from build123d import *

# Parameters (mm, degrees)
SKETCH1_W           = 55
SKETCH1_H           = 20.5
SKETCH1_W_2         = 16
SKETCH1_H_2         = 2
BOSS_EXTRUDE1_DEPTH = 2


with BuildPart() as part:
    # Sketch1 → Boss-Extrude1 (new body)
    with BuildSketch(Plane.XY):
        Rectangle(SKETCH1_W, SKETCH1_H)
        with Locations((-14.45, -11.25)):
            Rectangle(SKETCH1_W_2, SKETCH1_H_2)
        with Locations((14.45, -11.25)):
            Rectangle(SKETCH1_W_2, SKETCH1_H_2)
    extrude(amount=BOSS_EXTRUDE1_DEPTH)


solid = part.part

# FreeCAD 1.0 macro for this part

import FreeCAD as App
import Part
import Sketcher


def add_polygon(sketch, points):
    """Adds a closed chain of lines whose ends are joined by coincident constraints."""
    first, n = sketch.GeometryCount, len(points)
    for a, b in zip(points, points[1:] + points[:1]):
        sketch.addGeometry(Part.LineSegment(App.Vector(*a, 0), App.Vector(*b, 0)), False)
    for i in range(n):
        sketch.addConstraint(Sketcher.Constraint("Coincident", first + i, 2, first + (i + 1) % n, 1))

doc = App.newDocument("Part")
body = doc.addObject("PartDesign::Body", "Body")

# Sketch on XY plane
sketch1 = body.newObject("Sketcher::SketchObject", "Sketch")
sketch1.AttachmentSupport = (doc.getObject("XY_Plane"), [""])
sketch1.MapMode = "FlatFace"
add_polygon(sketch1, [(-27.5, 10.2), (-27.5, -10.2), (-22.4, -10.2), (-22.4, -12.2), (-6.5, -12.2), (-6.5, -10.2), (6.5, -10.2), (6.5, -12.2), (22.4, -12.2), (22.4, -10.2), (27.5, -10.2), (27.5, 10.2)])  # lines 0-11
sketch1.addConstraint(Sketcher.Constraint("Vertical", 0))
sketch1.addConstraint(Sketcher.Constraint("Horizontal", 1))
sketch1.addConstraint(Sketcher.Constraint("Vertical", 2))
sketch1.addConstraint(Sketcher.Constraint("Horizontal", 3))
sketch1.addConstraint(Sketcher.Constraint("Vertical", 4))
sketch1.addConstraint(Sketcher.Constraint("Horizontal", 5))
sketch1.addConstraint(Sketcher.Constraint("Vertical", 6))
sketch1.addConstraint(Sketcher.Constraint("Horizontal", 7))
sketch1.addConstraint(Sketcher.Constraint("Vertical", 8))
sketch1.addConstraint(Sketcher.Constraint("Horizontal", 9))
sketch1.addConstraint(Sketcher.Constraint("Vertical", 10))
sketch1.addConstraint(Sketcher.Constraint("Horizontal", 11))
sketch1.addConstraint(Sketcher.Constraint("Symmetric", 0, 2, 10, 2, -1, 1))
sketch1.addConstraint(Sketcher.Constraint("Symmetric", 3, 2, 6, 2, -2))
sketch1.addConstraint(Sketcher.Constraint("Symmetric", 1, 2, 8, 2, -2))
sketch1.addConstraint(Sketcher.Constraint("Horizontal", 1, 2, 4, 2))
sketch1.addConstraint(Sketcher.Constraint("DistanceX", 3, 1, 3, 2, 16.0))
sketch1.addConstraint(Sketcher.Constraint("DistanceX", 11, 2, 11, 1, 55.0))
sketch1.addConstraint(Sketcher.Constraint("DistanceY", 2, 2, 2, 1, 2.0))
sketch1.addConstraint(Sketcher.Constraint("DistanceX", 5, 1, 5, 2, 12.9))
sketch1.addConstraint(Sketcher.Constraint("DistanceY", 0, 2, 0, 1, 20.5))
pad1 = body.newObject("PartDesign::Pad", "Pad")
pad1.Profile = sketch1
pad1.Length = 2

doc.recompute()
